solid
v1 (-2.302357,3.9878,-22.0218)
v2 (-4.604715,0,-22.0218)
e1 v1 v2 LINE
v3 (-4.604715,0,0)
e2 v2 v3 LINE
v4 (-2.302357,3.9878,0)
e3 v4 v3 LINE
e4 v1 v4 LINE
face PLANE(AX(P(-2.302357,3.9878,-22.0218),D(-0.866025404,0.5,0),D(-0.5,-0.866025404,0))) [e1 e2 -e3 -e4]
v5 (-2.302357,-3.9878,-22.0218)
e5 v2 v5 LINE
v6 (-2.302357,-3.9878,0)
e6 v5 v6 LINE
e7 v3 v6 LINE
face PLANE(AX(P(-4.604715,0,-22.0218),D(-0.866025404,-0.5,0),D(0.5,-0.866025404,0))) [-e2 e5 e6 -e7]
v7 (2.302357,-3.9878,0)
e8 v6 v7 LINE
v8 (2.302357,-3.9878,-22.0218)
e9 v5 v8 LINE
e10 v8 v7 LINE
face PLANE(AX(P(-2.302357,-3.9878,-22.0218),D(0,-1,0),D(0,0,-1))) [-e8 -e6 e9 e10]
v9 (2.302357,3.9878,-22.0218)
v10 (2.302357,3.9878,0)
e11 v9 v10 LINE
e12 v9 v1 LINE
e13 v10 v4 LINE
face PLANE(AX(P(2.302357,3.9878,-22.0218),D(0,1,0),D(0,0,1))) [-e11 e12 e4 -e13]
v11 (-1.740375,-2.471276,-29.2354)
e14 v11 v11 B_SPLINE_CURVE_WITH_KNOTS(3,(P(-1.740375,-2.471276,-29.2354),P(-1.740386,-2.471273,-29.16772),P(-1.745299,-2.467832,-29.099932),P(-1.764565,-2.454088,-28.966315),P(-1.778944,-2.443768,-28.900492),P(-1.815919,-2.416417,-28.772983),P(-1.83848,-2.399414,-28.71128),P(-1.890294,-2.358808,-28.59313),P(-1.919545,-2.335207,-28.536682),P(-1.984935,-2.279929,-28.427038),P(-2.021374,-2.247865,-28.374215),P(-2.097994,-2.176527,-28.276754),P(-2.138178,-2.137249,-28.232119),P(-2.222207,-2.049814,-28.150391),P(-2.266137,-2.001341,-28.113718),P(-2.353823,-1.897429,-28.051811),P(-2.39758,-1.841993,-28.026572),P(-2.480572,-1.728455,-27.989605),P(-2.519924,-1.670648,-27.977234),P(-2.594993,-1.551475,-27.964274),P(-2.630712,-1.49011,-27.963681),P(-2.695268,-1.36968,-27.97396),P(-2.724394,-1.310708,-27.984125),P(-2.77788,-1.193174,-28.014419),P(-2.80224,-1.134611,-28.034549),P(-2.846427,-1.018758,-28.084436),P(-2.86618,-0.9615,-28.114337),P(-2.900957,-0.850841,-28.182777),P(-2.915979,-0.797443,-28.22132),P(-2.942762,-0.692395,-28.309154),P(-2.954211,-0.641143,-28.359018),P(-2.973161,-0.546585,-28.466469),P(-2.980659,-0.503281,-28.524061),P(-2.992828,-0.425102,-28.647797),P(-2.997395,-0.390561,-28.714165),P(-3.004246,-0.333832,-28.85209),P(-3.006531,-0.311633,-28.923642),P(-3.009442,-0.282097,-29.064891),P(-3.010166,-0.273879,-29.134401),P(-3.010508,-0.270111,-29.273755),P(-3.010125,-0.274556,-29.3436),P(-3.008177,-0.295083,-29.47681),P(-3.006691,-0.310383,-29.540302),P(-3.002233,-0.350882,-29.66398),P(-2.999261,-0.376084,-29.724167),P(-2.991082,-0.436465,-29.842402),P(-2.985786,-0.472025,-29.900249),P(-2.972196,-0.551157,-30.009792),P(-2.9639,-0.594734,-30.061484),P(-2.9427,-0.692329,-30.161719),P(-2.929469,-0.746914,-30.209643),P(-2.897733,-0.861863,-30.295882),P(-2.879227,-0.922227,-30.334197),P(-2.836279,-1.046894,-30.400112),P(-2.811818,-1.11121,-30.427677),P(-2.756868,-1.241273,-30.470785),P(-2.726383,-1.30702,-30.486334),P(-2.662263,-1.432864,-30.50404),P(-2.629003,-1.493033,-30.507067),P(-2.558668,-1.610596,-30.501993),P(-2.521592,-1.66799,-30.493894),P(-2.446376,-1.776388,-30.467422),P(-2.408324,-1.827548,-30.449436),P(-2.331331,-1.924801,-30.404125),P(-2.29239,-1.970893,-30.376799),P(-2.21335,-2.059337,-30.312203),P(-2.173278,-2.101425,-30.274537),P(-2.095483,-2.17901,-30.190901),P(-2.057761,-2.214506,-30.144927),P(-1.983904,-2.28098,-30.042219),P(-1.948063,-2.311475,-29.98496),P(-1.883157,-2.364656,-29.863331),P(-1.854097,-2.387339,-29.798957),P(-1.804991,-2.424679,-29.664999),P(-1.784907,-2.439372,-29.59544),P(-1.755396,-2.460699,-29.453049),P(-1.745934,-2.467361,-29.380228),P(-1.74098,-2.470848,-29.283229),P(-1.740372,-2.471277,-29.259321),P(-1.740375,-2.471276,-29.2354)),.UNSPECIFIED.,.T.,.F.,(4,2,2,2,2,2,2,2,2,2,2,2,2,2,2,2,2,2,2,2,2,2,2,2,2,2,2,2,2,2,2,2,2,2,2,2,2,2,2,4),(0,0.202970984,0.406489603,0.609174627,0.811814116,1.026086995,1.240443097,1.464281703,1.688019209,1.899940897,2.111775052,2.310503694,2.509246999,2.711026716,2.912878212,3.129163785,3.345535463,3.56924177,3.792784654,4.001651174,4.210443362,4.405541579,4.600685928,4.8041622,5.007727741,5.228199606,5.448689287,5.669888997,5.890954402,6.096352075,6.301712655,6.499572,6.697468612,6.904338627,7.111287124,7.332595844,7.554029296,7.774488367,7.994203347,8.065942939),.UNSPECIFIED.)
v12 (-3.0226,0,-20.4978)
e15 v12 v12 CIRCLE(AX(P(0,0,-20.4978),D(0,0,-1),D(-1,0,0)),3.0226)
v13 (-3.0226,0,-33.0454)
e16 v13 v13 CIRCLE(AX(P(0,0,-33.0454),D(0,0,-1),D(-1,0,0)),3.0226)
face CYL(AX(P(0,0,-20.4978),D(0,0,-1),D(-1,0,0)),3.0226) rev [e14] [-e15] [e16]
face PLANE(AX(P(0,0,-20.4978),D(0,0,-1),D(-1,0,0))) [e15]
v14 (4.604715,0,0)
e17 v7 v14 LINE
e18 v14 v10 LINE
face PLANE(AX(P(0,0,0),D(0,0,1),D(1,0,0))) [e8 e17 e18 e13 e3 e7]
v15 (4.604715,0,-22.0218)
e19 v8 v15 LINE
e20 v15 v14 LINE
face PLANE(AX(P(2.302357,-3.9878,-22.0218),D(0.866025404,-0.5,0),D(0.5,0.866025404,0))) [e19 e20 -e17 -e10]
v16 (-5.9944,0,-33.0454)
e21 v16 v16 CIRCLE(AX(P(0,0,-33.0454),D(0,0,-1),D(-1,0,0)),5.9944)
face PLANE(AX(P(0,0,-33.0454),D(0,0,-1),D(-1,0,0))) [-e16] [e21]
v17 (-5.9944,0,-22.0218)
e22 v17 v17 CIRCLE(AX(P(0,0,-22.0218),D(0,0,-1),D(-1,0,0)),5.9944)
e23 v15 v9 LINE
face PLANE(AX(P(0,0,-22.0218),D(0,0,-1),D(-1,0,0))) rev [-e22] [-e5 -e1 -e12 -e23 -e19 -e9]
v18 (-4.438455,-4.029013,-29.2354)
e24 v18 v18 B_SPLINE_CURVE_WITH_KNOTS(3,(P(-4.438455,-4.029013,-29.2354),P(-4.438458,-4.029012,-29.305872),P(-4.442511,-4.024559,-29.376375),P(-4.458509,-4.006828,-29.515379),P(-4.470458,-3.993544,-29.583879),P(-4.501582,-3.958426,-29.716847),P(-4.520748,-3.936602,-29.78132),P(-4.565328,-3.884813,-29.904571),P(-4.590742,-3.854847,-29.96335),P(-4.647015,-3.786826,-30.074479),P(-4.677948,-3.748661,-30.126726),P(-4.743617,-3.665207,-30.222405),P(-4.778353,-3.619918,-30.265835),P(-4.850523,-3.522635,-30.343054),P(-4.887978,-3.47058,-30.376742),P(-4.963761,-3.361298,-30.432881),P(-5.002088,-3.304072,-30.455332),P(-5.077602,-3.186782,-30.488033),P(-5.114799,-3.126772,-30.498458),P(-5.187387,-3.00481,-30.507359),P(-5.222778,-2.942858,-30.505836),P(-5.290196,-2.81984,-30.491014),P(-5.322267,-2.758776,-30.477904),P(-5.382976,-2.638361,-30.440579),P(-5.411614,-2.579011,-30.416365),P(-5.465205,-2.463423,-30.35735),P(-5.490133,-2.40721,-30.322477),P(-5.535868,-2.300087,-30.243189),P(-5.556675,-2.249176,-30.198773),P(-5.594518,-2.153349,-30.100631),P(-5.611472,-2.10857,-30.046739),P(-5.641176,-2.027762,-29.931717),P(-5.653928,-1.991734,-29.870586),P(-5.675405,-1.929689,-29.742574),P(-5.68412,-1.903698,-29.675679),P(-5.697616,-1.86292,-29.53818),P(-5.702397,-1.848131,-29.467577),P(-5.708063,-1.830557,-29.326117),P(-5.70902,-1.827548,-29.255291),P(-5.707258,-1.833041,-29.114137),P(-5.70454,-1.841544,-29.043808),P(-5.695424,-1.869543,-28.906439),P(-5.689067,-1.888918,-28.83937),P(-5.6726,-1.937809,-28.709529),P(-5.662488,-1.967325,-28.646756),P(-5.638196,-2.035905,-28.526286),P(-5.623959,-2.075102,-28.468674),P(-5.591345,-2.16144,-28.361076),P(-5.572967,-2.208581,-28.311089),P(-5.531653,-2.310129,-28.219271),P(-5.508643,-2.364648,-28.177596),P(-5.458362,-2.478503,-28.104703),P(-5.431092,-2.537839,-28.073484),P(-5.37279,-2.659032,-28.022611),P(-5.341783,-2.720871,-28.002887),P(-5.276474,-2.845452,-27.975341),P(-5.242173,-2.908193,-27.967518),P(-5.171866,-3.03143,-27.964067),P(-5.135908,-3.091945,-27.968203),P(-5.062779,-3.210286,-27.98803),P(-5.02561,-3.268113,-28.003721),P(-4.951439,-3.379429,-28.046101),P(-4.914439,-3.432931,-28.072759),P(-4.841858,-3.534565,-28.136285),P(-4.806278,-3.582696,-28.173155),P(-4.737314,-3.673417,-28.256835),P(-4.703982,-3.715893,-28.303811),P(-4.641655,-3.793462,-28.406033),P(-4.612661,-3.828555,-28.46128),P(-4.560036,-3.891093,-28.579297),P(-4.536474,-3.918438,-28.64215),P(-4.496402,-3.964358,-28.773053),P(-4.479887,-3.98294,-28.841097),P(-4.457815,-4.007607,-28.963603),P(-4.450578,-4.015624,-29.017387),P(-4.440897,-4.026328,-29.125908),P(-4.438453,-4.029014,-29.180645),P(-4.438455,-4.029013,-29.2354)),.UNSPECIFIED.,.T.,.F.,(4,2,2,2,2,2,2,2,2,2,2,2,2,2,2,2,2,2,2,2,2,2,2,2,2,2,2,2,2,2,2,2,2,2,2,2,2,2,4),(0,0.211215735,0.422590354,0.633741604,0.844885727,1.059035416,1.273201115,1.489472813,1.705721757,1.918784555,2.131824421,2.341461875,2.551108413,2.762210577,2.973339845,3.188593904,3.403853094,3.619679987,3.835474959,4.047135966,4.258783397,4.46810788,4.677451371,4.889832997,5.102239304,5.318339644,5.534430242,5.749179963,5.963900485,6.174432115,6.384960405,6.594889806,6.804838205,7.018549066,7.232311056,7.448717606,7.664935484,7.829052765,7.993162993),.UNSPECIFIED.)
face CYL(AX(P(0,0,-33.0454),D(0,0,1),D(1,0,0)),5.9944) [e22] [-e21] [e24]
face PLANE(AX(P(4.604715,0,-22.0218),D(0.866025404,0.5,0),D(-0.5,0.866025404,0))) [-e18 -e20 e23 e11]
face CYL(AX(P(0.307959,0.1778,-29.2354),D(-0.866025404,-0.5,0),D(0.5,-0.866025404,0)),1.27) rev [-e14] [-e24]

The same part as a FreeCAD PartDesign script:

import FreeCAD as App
import Part
import Sketcher
Q = App.Units.Quantity

doc = App.newDocument("Part")
body = doc.addObject("PartDesign::Body", "Body")

# Sketch on XY plane
sketch1 = body.newObject("Sketcher::SketchObject", "Sketch")
sketch1.AttachmentSupport = (doc.getObject("XY_Plane"), [""])
sketch1.MapMode = "FlatFace"
sketch1.addGeometry([
    Part.LineSegment(App.Vector(2.302357, 3.9878, 0), App.Vector(-2.302357, 3.9878, 0)),  # 0
    Part.LineSegment(App.Vector(-2.302357, 3.9878, 0), App.Vector(-4.604715, 0, 0)),  # 1
    Part.LineSegment(App.Vector(-4.604715, 0, 0), App.Vector(-2.302357, -3.9878, 0)),  # 2
    Part.LineSegment(App.Vector(-2.302357, -3.9878, 0), App.Vector(2.302357, -3.9878, 0)),  # 3
    Part.LineSegment(App.Vector(2.302357, -3.9878, 0), App.Vector(4.604715, 0, 0)),  # 4
    Part.LineSegment(App.Vector(4.604715, 0, 0), App.Vector(2.302357, 3.9878, 0)),  # 5
], False)
sketch1.addConstraint([
    Sketcher.Constraint("Coincident", 0, 2, 1, 1),
    Sketcher.Constraint("Coincident", 1, 2, 2, 1),
    Sketcher.Constraint("Coincident", 2, 2, 3, 1),
    Sketcher.Constraint("Coincident", 3, 2, 4, 1),
    Sketcher.Constraint("Coincident", 4, 2, 5, 1),
    Sketcher.Constraint("Coincident", 5, 2, 0, 1),
    Sketcher.Constraint("Horizontal", 0),
    Sketcher.Constraint("Horizontal", 3),
    Sketcher.Constraint("Symmetric", 0, 2, 3, 2, -1, 1),
    Sketcher.Constraint("Symmetric", 1, 2, 4, 2, -1, 1),
    Sketcher.Constraint("PointOnObject", 1, 2, -1),
    Sketcher.Constraint("Parallel", 2, 5),
    Sketcher.Constraint("Vertical", 0, 2, 2, 2),
    Sketcher.Constraint("Angle", 1, Q("-120 deg")),
    Sketcher.Constraint("DistanceY", -1, 1, 0, 2, Q("0.157 in")),
    Sketcher.Constraint("DistanceX", 0, 2, 0, 1, Q("4.604715 mm")),
])
pad1 = body.newObject("PartDesign::Pad", "Pad")
pad1.Profile = sketch1
pad1.Length = Q("0.867 in")
pad1.Reversed = True

# Sketch on XY plane
sketch2 = body.newObject("Sketcher::SketchObject", "Sketch001")
sketch2.AttachmentSupport = (doc.getObject("XY_Plane"), [""])
sketch2.MapMode = "FlatFace"
sketch2.AttachmentOffset = App.Placement(App.Vector(0, 0, -0.867 * 25.4), App.Rotation())
sketch2.addGeometry(Part.Circle(App.Vector(0, 0, 0), App.Vector(0, 0, 1), 5.9944), False)
sketch2.addConstraint([
    Sketcher.Constraint("Coincident", 0, 3, -1, 1),
    Sketcher.Constraint("Diameter", 0, Q("0.472 in")),
])
pad2 = body.newObject("PartDesign::Pad", "Pad001")
pad2.Profile = sketch2
pad2.Length = Q("0.434 in")
pad2.Reversed = True

# Sketch on XY plane
sketch3 = body.newObject("Sketcher::SketchObject", "Sketch002")
sketch3.AttachmentSupport = (doc.getObject("XY_Plane"), [""])
sketch3.MapMode = "FlatFace"
sketch3.AttachmentOffset = App.Placement(App.Vector(0, 0, -1.301 * 25.4), App.Rotation())
sketch3.addGeometry(Part.Circle(App.Vector(0, 0, 0), App.Vector(0, 0, 1), 3.0226), False)
sketch3.addConstraint([
    Sketcher.Constraint("Coincident", 0, 3, -1, 1),
    Sketcher.Constraint("Diameter", 0, Q("0.238 in")),
])
pocket1 = body.newObject("PartDesign::Pocket", "Pocket")
pocket1.Profile = sketch3
pocket1.Length = Q("0.494 in")
pocket1.Reversed = True

# Sketch on an angled plane
sketch4 = body.newObject("Sketcher::SketchObject", "Sketch003")
sketch4.Placement = App.Placement(App.Vector(-5.191303, -2.9972, 0), App.Rotation(App.Vector(0, 0, 1), App.Vector(-0.5, 0.866025404, 0), App.Vector(-0.866025404, -0.5, 0), "ZXY"))
sketch4.addGeometry(Part.Circle(App.Vector(-29.2354, 0, 0), App.Vector(0, 0, 1), 1.27), False)
sketch4.addConstraint([
    Sketcher.Constraint("PointOnObject", 0, 3, -1),
    Sketcher.Constraint("Diameter", 0, Q("0.1 in")),
    Sketcher.Constraint("DistanceX", 0, 3, -1, 1, Q("1.151 in")),
])
pocket2 = body.newObject("PartDesign::Pocket", "Pocket001")
pocket2.Profile = sketch4
pocket2.Length = Q("0.25 in")

doc.recompute()
